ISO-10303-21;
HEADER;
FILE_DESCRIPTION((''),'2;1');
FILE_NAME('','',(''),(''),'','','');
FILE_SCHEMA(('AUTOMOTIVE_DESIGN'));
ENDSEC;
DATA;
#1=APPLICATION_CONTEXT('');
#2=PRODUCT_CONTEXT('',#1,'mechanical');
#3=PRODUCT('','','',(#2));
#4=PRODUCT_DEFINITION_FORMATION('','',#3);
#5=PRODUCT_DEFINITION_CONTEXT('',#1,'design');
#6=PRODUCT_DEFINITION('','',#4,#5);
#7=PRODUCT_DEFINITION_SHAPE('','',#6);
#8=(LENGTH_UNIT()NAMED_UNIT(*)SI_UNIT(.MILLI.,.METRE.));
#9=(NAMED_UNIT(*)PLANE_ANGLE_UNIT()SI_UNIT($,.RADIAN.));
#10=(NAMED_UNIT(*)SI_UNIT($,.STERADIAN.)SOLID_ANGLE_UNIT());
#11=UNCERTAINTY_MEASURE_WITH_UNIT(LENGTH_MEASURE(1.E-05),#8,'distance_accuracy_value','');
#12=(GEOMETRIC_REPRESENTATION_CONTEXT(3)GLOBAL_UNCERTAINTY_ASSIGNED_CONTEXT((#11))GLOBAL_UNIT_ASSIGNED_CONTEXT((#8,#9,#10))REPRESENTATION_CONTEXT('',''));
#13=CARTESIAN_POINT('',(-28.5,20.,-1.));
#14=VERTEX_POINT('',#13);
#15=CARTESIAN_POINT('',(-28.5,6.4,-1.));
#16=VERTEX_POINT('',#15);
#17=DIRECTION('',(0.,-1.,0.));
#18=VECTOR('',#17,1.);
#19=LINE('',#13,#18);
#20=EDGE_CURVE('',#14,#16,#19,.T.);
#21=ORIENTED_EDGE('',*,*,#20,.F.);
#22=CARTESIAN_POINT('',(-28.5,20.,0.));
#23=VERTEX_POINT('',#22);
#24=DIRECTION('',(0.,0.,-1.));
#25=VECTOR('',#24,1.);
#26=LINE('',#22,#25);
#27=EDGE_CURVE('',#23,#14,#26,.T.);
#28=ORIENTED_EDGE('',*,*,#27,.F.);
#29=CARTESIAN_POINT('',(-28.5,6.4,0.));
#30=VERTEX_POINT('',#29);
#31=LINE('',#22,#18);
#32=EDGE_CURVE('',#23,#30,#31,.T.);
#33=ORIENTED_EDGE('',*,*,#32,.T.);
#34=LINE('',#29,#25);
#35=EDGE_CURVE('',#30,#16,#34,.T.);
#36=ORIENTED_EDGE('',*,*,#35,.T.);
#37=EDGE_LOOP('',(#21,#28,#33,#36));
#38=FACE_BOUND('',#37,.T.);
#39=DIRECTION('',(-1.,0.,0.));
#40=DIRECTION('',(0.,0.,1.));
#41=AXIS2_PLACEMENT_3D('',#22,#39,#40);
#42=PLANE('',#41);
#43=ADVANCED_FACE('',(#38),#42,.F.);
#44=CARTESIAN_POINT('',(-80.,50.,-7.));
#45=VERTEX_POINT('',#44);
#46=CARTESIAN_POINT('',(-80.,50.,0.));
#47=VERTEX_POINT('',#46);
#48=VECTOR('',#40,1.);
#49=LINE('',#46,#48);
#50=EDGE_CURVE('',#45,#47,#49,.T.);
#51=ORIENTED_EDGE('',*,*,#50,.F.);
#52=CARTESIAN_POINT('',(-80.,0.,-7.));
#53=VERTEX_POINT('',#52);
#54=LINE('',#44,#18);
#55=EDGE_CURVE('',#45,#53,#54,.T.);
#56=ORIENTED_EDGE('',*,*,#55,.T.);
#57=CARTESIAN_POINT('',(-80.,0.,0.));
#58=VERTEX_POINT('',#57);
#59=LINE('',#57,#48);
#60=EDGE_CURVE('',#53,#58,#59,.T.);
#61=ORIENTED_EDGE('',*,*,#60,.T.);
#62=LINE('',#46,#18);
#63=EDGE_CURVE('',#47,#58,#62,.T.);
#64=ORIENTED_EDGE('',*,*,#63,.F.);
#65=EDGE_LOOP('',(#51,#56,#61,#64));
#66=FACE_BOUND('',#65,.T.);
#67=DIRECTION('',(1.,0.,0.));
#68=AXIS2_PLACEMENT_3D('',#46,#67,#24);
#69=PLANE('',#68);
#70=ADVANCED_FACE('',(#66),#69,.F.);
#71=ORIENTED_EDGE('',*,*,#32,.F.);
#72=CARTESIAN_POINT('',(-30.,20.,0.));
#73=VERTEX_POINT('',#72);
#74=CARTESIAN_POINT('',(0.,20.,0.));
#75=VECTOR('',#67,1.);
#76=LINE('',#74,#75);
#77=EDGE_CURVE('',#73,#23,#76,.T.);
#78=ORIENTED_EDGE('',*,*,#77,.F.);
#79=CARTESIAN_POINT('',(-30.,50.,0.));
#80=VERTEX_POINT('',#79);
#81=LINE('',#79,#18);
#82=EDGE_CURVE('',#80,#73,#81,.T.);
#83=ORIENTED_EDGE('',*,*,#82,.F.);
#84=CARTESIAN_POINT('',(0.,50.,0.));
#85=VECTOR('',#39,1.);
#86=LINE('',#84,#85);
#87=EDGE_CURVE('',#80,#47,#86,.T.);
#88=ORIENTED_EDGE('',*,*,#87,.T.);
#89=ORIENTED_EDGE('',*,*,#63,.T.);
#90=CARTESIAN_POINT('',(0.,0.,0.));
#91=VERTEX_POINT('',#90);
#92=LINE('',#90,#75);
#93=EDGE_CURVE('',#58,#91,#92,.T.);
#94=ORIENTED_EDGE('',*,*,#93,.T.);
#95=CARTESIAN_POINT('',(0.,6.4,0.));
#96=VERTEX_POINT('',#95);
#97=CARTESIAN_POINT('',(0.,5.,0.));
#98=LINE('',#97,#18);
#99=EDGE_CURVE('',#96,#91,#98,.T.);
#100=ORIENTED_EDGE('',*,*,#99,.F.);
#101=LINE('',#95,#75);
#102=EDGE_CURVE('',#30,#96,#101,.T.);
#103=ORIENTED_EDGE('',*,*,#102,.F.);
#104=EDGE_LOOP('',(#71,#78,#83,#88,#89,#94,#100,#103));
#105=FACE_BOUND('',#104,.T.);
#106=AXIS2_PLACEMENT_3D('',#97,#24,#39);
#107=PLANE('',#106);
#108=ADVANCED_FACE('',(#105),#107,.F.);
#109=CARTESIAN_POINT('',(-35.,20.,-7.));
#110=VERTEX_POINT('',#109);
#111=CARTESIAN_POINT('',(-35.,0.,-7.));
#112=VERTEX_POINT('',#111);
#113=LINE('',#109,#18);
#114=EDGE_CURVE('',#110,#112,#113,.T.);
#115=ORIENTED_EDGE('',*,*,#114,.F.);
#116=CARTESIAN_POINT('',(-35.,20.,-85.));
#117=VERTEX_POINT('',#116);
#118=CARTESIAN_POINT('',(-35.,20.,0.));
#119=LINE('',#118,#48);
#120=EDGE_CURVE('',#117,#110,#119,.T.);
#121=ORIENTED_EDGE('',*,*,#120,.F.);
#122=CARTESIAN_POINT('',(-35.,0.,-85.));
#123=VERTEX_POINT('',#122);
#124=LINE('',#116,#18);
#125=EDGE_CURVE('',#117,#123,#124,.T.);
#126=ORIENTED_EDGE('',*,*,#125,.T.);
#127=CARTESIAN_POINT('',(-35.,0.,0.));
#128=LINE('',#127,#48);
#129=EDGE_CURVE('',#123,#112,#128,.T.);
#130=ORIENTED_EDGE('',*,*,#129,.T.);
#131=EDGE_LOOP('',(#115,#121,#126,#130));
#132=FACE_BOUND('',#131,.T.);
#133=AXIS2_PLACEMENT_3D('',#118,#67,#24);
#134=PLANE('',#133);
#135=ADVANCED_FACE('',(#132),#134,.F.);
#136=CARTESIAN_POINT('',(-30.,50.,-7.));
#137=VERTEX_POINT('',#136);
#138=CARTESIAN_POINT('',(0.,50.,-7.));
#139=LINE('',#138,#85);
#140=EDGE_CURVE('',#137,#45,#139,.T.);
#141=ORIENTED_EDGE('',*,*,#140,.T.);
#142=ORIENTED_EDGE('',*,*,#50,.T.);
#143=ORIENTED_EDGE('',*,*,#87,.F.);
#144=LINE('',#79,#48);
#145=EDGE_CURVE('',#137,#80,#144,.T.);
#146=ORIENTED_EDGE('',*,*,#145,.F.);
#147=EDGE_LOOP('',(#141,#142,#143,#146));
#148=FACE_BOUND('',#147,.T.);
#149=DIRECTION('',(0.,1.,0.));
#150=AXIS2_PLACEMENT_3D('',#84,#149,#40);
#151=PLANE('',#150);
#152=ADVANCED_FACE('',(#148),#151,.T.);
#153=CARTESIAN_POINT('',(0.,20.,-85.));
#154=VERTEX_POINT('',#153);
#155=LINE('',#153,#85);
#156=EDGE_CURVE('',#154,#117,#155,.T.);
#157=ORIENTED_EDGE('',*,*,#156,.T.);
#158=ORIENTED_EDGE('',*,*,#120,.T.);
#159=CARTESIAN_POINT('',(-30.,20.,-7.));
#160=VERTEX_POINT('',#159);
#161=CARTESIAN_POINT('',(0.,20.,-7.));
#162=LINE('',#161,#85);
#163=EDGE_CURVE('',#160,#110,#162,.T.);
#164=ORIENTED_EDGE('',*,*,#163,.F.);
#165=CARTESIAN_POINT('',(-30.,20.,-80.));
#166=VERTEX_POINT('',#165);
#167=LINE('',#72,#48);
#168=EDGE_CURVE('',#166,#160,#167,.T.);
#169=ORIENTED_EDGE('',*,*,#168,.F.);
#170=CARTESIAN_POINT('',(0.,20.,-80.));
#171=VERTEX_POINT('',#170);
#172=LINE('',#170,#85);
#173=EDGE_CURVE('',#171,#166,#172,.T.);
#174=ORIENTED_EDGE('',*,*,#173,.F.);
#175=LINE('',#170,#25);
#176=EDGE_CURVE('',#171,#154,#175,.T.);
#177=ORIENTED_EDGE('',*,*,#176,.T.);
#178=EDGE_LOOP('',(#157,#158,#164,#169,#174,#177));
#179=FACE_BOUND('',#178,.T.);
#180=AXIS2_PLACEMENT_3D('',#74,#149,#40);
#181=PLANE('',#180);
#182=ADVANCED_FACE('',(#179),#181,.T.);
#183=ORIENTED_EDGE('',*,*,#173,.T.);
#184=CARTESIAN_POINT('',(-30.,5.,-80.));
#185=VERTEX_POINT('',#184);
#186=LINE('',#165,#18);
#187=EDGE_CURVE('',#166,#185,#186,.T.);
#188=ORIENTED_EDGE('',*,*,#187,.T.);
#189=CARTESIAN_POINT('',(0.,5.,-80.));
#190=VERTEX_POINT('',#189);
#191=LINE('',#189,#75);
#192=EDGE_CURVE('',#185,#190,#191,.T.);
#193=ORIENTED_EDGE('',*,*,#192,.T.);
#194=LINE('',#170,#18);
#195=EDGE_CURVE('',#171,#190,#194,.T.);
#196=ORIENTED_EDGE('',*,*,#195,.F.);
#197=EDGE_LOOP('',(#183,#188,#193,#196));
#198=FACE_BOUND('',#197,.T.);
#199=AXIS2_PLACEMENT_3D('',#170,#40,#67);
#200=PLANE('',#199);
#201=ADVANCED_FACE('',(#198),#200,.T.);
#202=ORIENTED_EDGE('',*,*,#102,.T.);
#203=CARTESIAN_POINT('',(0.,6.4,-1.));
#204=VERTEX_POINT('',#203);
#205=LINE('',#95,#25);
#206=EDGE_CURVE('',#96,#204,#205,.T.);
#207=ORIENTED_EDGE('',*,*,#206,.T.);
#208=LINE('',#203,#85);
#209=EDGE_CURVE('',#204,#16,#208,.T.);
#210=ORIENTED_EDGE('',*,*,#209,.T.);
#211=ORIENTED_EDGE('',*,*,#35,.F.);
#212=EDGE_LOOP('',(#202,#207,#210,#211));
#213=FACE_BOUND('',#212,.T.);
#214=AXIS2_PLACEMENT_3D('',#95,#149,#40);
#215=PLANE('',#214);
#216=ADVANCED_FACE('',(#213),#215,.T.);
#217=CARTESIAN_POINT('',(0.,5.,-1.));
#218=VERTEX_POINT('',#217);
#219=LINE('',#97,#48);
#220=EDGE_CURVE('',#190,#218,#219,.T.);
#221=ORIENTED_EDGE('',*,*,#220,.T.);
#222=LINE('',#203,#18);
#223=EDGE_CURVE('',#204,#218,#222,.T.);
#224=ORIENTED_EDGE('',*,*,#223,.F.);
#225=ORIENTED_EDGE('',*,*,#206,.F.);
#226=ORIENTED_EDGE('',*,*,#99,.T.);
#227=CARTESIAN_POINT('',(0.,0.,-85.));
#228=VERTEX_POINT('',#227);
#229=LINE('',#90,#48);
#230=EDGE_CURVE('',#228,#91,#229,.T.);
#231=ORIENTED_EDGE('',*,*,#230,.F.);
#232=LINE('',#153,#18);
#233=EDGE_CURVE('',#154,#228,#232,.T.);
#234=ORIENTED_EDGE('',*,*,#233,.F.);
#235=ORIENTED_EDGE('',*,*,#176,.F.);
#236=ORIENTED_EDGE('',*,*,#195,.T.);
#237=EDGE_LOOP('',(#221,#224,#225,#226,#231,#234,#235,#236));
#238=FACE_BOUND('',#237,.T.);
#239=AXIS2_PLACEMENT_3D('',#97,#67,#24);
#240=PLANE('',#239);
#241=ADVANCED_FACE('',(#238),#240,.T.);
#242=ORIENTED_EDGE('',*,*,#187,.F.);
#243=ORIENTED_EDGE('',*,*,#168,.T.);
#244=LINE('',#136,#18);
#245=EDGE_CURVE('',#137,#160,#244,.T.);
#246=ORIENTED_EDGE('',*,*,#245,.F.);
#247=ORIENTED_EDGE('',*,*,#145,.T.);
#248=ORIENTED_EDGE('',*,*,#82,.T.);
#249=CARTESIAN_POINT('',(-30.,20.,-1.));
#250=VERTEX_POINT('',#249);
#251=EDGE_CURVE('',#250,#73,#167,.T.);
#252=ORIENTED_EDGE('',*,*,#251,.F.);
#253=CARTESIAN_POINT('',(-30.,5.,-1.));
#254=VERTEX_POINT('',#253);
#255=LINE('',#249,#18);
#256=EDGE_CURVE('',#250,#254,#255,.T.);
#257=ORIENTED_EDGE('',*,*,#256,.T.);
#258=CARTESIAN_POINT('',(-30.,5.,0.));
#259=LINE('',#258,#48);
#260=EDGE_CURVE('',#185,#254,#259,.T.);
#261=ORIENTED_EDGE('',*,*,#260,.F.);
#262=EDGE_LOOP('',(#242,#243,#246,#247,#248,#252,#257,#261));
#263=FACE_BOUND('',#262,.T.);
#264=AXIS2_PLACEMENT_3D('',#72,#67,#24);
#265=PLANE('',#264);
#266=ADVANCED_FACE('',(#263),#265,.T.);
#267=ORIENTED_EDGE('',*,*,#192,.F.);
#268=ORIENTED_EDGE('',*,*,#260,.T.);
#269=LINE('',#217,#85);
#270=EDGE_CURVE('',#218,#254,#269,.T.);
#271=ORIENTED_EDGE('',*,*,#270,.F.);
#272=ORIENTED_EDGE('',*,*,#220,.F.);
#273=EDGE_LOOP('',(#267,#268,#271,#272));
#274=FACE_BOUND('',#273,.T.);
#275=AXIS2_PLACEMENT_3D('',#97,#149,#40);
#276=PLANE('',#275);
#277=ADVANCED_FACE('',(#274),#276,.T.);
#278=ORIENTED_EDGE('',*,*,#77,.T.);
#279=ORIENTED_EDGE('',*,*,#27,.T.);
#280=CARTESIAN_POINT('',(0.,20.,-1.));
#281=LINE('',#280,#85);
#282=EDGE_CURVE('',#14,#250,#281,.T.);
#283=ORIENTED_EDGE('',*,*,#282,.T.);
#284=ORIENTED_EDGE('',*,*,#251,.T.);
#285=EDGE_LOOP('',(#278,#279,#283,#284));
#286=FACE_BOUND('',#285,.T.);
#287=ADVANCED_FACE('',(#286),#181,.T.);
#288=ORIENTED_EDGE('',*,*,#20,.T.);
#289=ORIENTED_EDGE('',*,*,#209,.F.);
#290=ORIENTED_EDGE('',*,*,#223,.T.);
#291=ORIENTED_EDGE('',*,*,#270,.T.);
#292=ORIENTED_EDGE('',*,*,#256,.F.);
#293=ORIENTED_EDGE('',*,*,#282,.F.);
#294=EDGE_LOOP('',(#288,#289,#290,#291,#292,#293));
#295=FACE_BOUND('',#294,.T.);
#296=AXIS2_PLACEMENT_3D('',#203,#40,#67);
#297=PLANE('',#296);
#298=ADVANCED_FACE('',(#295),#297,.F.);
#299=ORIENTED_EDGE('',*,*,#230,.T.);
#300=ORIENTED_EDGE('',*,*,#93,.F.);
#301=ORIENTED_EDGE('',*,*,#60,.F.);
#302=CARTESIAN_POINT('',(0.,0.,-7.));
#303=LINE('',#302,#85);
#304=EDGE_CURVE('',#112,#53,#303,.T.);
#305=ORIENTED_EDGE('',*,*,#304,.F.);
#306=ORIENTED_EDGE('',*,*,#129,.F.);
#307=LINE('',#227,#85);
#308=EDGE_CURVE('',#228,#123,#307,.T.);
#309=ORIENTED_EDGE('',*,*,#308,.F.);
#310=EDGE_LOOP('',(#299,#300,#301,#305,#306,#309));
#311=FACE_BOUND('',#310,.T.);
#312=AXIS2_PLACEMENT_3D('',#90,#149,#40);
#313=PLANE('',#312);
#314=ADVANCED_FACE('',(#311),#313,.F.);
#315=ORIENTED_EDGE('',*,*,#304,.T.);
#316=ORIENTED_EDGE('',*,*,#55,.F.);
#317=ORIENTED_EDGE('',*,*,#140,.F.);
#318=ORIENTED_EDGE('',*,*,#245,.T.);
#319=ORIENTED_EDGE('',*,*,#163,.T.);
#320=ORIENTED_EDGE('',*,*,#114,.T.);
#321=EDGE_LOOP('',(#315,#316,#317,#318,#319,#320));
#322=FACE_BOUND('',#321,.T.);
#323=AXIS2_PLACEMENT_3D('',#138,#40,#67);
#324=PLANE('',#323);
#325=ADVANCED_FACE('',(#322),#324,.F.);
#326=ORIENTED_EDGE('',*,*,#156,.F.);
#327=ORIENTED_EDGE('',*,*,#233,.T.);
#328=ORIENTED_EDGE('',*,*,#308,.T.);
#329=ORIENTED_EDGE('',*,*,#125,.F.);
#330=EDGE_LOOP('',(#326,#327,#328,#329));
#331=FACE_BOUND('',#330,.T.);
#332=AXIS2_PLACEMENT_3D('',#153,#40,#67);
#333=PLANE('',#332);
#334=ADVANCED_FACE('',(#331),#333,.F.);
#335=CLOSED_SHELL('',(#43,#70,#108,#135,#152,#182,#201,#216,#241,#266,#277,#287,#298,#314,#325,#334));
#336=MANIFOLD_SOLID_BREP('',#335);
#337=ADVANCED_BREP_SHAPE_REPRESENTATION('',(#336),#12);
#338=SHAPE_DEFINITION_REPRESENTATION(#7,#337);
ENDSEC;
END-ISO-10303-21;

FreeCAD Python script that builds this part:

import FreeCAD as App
import Part
import Sketcher

doc = App.newDocument("Part")
body = doc.addObject("PartDesign::Body", "Body")

# Sketch on XZ plane
sketch1 = body.newObject("Sketcher::SketchObject", "Sketch")
sketch1.AttachmentSupport = (doc.getObject("XZ_Plane"), [""])
sketch1.MapMode = "FlatFace"
sketch1.addGeometry([
    Part.LineSegment(App.Vector(0, -80, 0), App.Vector(-30, -80, 0)),
    Part.LineSegment(App.Vector(-30, -80, 0), App.Vector(-30, 0, 0)),
    Part.LineSegment(App.Vector(-30, 0, 0), App.Vector(0, 0, 0)),
    Part.LineSegment(App.Vector(0, 0, 0), App.Vector(0, -80, 0)),
], False)
sketch1.addConstraint([
    Sketcher.Constraint("Coincident", 0, 2, 1, 1),
    Sketcher.Constraint("Coincident", 1, 2, 2, 1),
    Sketcher.Constraint("Coincident", 2, 2, 3, 1),
    Sketcher.Constraint("Coincident", 3, 2, 0, 1),
    Sketcher.Constraint("Horizontal", 0),
    Sketcher.Constraint("Vertical", 1),
    Sketcher.Constraint("Horizontal", 2),
    Sketcher.Constraint("Vertical", 3),
    Sketcher.Constraint("Coincident", 2, 2, -1, 1),
    Sketcher.Constraint("DistanceX", 0, 2, 0, 1, 30.0),
    Sketcher.Constraint("DistanceY", 1, 1, 1, 2, 80.0),
])
pad1 = body.newObject("PartDesign::Pad", "Pad")
pad1.Profile = sketch1
pad1.Length = 5
pad1.Reversed = True

# Sketch on XZ plane
sketch2 = body.newObject("Sketcher::SketchObject", "Sketch001")
sketch2.AttachmentSupport = (doc.getObject("XZ_Plane"), [""])
sketch2.MapMode = "FlatFace"
sketch2.addGeometry([
    Part.LineSegment(App.Vector(-35, -85, 0), App.Vector(-35, -7, 0)),  # 0
    Part.LineSegment(App.Vector(-35, -7, 0), App.Vector(-30, -7, 0)),  # 1
    Part.LineSegment(App.Vector(-30, -7, 0), App.Vector(-30, -80, 0)),  # 2
    Part.LineSegment(App.Vector(-30, -80, 0), App.Vector(0, -80, 0)),  # 3
    Part.LineSegment(App.Vector(0, -80, 0), App.Vector(0, -85, 0)),  # 4
    Part.LineSegment(App.Vector(0, -85, 0), App.Vector(-35, -85, 0)),  # 5
], False)
sketch2.addConstraint([
    Sketcher.Constraint("Coincident", 0, 2, 1, 1),
    Sketcher.Constraint("Coincident", 1, 2, 2, 1),
    Sketcher.Constraint("Coincident", 2, 2, 3, 1),
    Sketcher.Constraint("Coincident", 3, 2, 4, 1),
    Sketcher.Constraint("Coincident", 4, 2, 5, 1),
    Sketcher.Constraint("Coincident", 5, 2, 0, 1),
    Sketcher.Constraint("Vertical", 0),
    Sketcher.Constraint("Horizontal", 1),
    Sketcher.Constraint("Vertical", 2),
    Sketcher.Constraint("Horizontal", 3),
    Sketcher.Constraint("Vertical", 4),
    Sketcher.Constraint("Horizontal", 5),
    Sketcher.Constraint("PointOnObject", 3, 2, -2),
    Sketcher.Constraint("Equal", 1, 4),
    Sketcher.Constraint("DistanceX", 1, 1, 1, 2, 5.0),
    Sketcher.Constraint("DistanceX", 3, 1, 3, 2, 30.0),
    Sketcher.Constraint("DistanceY", 0, 1, 0, 2, 78.0),
    Sketcher.Constraint("DistanceY", 0, 2, -1, 1, 7.0),
])
pad2 = body.newObject("PartDesign::Pad", "Pad001")
pad2.Profile = sketch2
pad2.Length = 20
pad2.Reversed = True

# Sketch on XZ plane
sketch3 = body.newObject("Sketcher::SketchObject", "Sketch002")
sketch3.AttachmentSupport = (doc.getObject("XZ_Plane"), [""])
sketch3.MapMode = "FlatFace"
sketch3.addGeometry([
    Part.LineSegment(App.Vector(-30, 0, 0), App.Vector(-30, -7, 0)),
    Part.LineSegment(App.Vector(-30, -7, 0), App.Vector(-80, -7, 0)),
    Part.LineSegment(App.Vector(-80, -7, 0), App.Vector(-80, 0, 0)),
    Part.LineSegment(App.Vector(-80, 0, 0), App.Vector(-30, 0, 0)),
], False)
sketch3.addConstraint([
    Sketcher.Constraint("Coincident", 0, 2, 1, 1),
    Sketcher.Constraint("Coincident", 1, 2, 2, 1),
    Sketcher.Constraint("Coincident", 2, 2, 3, 1),
    Sketcher.Constraint("Coincident", 3, 2, 0, 1),
    Sketcher.Constraint("Vertical", 0),
    Sketcher.Constraint("Horizontal", 1),
    Sketcher.Constraint("Vertical", 2),
    Sketcher.Constraint("Horizontal", 3),
    Sketcher.Constraint("PointOnObject", 2, 2, -1),
    Sketcher.Constraint("DistanceX", 1, 2, 1, 1, 50.0),
    Sketcher.Constraint("DistanceY", 0, 2, 0, 1, 7.0),
    Sketcher.Constraint("DistanceX", 0, 2, -1, 1, 30.0),
])
pad3 = body.newObject("PartDesign::Pad", "Pad002")
pad3.Profile = sketch3
pad3.Length = 50
pad3.Reversed = True

# Sketch on XZ plane
sketch4 = body.newObject("Sketcher::SketchObject", "Sketch003")
sketch4.AttachmentSupport = (doc.getObject("XZ_Plane"), [""])
sketch4.MapMode = "FlatFace"
sketch4.AttachmentOffset = App.Placement(App.Vector(0, 0, -5), App.Rotation())
sketch4.addGeometry([
    Part.LineSegment(App.Vector(-28.5, -1, 0), App.Vector(-28.5, 0, 0)),
    Part.LineSegment(App.Vector(-28.5, 0, 0), App.Vector(0, 0, 0)),
    Part.LineSegment(App.Vector(0, 0, 0), App.Vector(0, -1, 0)),
    Part.LineSegment(App.Vector(0, -1, 0), App.Vector(-28.5, -1, 0)),
], False)
sketch4.addConstraint([
    Sketcher.Constraint("Coincident", 0, 2, 1, 1),
    Sketcher.Constraint("Coincident", 1, 2, 2, 1),
    Sketcher.Constraint("Coincident", 2, 2, 3, 1),
    Sketcher.Constraint("Coincident", 3, 2, 0, 1),
    Sketcher.Constraint("Vertical", 0),
    Sketcher.Constraint("Horizontal", 1),
    Sketcher.Constraint("Vertical", 2),
    Sketcher.Constraint("Horizontal", 3),
    Sketcher.Constraint("Coincident", 1, 2, -1, 1),
    Sketcher.Constraint("DistanceY", 0, 1, 0, 2, 1.0),
    Sketcher.Constraint("DistanceX", 1, 1, 1, 2, 28.5),
])
pad4 = body.newObject("PartDesign::Pad", "Pad003")
pad4.Profile = sketch4
pad4.Length = 1.4
pad4.Reversed = True

# Sketch on XZ plane
sketch5 = body.newObject("Sketcher::SketchObject", "Sketch004")
sketch5.AttachmentSupport = (doc.getObject("XZ_Plane"), [""])
sketch5.MapMode = "FlatFace"
sketch5.AttachmentOffset = App.Placement(App.Vector(0, 0, -5), App.Rotation())
sketch5.addGeometry([
    Part.LineSegment(App.Vector(-30, -1, 0), App.Vector(-30, 0, 0)),
    Part.LineSegment(App.Vector(-30, 0, 0), App.Vector(-28.5, 0, 0)),
    Part.LineSegment(App.Vector(-28.5, 0, 0), App.Vector(-28.5, -1, 0)),
    Part.LineSegment(App.Vector(-28.5, -1, 0), App.Vector(-30, -1, 0)),
], False)
sketch5.addConstraint([
    Sketcher.Constraint("Coincident", 0, 2, 1, 1),
    Sketcher.Constraint("Coincident", 1, 2, 2, 1),
    Sketcher.Constraint("Coincident", 2, 2, 3, 1),
    Sketcher.Constraint("Coincident", 3, 2, 0, 1),
    Sketcher.Constraint("Vertical", 0),
    Sketcher.Constraint("Horizontal", 1),
    Sketcher.Constraint("Vertical", 2),
    Sketcher.Constraint("Horizontal", 3),
    Sketcher.Constraint("PointOnObject", 0, 2, -1),
    Sketcher.Constraint("DistanceY", 0, 1, 0, 2, 1.0),
    Sketcher.Constraint("DistanceX", 1, 1, 1, 2, 1.5),
    Sketcher.Constraint("DistanceX", 0, 2, -1, 1, 30.0),
])
pad5 = body.newObject("PartDesign::Pad", "Pad004")
pad5.Profile = sketch5
pad5.Length = 15
pad5.Reversed = True

doc.recompute()
